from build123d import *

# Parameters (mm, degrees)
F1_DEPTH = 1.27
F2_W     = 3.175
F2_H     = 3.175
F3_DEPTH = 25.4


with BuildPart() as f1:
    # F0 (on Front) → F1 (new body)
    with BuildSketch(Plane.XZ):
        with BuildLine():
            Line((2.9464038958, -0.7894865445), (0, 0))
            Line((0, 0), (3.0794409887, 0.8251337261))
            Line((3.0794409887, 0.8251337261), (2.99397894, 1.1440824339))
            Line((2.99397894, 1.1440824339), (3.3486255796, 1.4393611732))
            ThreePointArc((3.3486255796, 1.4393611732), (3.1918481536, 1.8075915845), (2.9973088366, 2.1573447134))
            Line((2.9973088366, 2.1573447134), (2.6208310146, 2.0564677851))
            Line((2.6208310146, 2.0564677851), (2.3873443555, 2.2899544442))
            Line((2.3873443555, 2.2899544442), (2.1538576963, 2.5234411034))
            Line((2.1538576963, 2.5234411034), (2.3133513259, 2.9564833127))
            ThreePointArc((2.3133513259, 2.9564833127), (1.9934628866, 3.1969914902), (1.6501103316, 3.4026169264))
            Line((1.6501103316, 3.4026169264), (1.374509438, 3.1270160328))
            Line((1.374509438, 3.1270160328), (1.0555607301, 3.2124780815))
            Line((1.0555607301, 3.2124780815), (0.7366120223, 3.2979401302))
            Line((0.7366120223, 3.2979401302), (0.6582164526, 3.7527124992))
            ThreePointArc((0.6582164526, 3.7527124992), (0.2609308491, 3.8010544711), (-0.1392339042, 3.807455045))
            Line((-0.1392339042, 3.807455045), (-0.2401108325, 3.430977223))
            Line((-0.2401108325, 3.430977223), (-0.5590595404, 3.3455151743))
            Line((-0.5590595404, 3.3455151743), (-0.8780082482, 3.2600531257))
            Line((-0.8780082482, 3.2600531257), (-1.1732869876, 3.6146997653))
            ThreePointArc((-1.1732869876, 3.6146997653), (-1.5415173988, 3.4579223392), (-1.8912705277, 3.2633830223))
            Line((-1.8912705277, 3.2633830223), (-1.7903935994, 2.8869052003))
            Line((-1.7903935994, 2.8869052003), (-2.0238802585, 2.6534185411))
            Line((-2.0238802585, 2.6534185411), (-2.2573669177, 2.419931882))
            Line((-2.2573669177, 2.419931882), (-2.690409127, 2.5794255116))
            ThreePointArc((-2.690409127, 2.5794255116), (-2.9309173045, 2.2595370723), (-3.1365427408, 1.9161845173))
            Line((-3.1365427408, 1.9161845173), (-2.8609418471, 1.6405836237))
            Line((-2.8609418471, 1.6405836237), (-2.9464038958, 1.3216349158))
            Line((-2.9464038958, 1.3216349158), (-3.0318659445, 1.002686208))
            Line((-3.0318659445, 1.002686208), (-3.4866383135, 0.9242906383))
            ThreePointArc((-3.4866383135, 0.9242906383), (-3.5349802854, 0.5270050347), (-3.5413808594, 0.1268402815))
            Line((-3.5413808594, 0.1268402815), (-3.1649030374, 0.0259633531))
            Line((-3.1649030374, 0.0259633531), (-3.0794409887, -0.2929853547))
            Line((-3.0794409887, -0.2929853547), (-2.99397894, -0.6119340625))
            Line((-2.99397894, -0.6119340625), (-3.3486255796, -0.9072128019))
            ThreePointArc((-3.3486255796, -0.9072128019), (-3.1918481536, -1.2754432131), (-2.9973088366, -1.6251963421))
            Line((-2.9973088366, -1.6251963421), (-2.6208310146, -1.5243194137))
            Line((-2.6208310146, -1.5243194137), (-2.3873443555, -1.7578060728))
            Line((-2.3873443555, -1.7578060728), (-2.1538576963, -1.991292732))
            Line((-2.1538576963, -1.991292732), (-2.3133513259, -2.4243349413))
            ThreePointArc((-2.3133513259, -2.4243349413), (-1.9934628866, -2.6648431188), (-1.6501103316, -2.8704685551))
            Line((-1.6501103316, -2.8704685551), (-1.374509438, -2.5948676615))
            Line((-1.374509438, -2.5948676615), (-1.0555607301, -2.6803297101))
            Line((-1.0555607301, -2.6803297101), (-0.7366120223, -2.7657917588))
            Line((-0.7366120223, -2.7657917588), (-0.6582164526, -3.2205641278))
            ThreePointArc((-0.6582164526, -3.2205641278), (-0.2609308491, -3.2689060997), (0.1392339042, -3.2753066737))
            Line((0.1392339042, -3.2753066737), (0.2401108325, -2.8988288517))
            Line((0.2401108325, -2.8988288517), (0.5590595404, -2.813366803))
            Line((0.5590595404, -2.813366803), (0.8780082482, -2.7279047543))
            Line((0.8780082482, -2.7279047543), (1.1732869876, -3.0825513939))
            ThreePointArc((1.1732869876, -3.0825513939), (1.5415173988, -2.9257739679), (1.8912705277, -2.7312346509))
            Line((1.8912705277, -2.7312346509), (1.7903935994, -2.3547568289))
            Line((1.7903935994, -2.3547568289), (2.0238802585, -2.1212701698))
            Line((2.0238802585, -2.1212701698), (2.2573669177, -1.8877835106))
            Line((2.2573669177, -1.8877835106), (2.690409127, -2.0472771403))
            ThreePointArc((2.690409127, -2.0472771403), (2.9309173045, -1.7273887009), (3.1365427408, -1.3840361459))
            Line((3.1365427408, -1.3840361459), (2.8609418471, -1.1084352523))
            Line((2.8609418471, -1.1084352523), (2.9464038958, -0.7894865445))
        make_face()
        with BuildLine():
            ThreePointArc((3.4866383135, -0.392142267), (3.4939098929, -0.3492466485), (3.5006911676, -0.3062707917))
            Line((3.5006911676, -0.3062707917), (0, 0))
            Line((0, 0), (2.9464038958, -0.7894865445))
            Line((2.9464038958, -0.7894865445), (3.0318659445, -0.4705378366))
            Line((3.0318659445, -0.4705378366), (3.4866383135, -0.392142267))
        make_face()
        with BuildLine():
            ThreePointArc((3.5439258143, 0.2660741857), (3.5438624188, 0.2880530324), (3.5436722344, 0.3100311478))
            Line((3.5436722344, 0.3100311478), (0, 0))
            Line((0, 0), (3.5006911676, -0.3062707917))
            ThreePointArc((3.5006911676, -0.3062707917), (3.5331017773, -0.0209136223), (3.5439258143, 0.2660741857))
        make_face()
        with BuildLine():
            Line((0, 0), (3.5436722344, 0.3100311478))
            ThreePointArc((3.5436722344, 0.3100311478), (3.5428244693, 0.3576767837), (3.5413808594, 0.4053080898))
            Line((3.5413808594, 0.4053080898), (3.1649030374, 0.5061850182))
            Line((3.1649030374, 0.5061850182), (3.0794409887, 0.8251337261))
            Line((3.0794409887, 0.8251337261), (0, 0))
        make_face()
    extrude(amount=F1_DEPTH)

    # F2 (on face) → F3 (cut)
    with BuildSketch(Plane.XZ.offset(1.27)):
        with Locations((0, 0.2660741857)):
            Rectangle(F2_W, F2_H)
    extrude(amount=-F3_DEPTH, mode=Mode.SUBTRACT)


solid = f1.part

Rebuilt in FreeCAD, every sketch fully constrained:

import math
import FreeCAD as App
import Part
import Sketcher

V = App.Vector
Q = App.Units.Quantity

doc = App.newDocument("Part")
body = doc.addObject("PartDesign::Body", "Body")

# Sketch on XZ plane
sketch1 = doc.addObject("Sketcher::SketchObject", "Sketch")
body.addObject(sketch1)
sketch1.AttachmentSupport = (doc.XZ_Plane, [""])
sketch1.MapMode = "FlatFace"
sketch1.addGeometry([
    Part.LineSegment(V(3.079, 0.825, 0), V(2.994, 1.144, 0)),  # 0
    Part.LineSegment(V(2.994, 1.144, 0), V(3.349, 1.439, 0)),  # 1
    Part.ArcOfCircle(Part.Circle(V(-0.23, 0.133, 0), V(0, 0, 1), 3.81), math.radians(20.05), math.radians(32.09)),  # 2
    Part.LineSegment(V(2.997, 2.157, 0), V(2.621, 2.056, 0)),  # 3
    Part.LineSegment(V(2.621, 2.056, 0), V(2.154, 2.523, 0)),  # 4
    Part.LineSegment(V(2.154, 2.523, 0), V(2.313, 2.956, 0)),  # 5
    Part.ArcOfCircle(Part.Circle(V(-0.133, 0.036, 0), V(0, 0, 1), 3.81), math.radians(50.05), math.radians(62.09)),  # 6
    Part.LineSegment(V(1.65, 3.403, 0), V(1.375, 3.127, 0)),  # 7
    Part.LineSegment(V(1.375, 3.127, 0), V(1.056, 3.212, 0)),  # 8
    Part.LineSegment(V(1.056, 3.212, 0), V(0.737, 3.298, 0)),  # 9
    Part.LineSegment(V(0.737, 3.298, 0), V(0.658, 3.753, 0)),  # 10
    Part.ArcOfCircle(Part.Circle(V(0, 0, 0), V(0, 0, 1), 3.81), math.radians(80.05), math.radians(92.09)),  # 11
    Part.LineSegment(V(-0.139, 3.807, 0), V(-0.24, 3.431, 0)),  # 12
    Part.LineSegment(V(-0.24, 3.431, 0), V(-0.559, 3.346, 0)),  # 13
    Part.LineSegment(V(-0.559, 3.346, 0), V(-0.878, 3.26, 0)),  # 14
    Part.LineSegment(V(-0.878, 3.26, 0), V(-1.173, 3.615, 0)),  # 15
    Part.ArcOfCircle(Part.Circle(V(0.133, 0.036, 0), V(0, 0, 1), 3.81), math.radians(110.05), math.radians(122.09)),  # 16
    Part.LineSegment(V(-1.891, 3.263, 0), V(-1.79, 2.887, 0)),  # 17
    Part.LineSegment(V(-1.79, 2.887, 0), V(-2.024, 2.653, 0)),  # 18
    Part.LineSegment(V(-2.024, 2.653, 0), V(-2.257, 2.42, 0)),  # 19
    Part.LineSegment(V(-2.257, 2.42, 0), V(-2.69, 2.579, 0)),  # 20
    Part.ArcOfCircle(Part.Circle(V(0.23, 0.133, 0), V(0, 0, 1), 3.81), math.radians(140.05), math.radians(152.09)),  # 21
    Part.LineSegment(V(-3.137, 1.916, 0), V(-2.861, 1.641, 0)),  # 22
    Part.LineSegment(V(-2.861, 1.641, 0), V(-2.946, 1.322, 0)),  # 23
    Part.LineSegment(V(-2.946, 1.322, 0), V(-3.032, 1.003, 0)),  # 24
    Part.LineSegment(V(-3.032, 1.003, 0), V(-3.487, 0.924, 0)),  # 25
    Part.ArcOfCircle(Part.Circle(V(0.266, 0.266, 0), V(0, 0, 1), 3.81), math.radians(170.05), math.radians(182.09)),  # 26
    Part.LineSegment(V(-3.541, 0.127, 0), V(-3.165, 0.026, 0)),  # 27
    Part.LineSegment(V(-3.165, 0.026, 0), V(-2.994, -0.612, 0)),  # 28
    Part.LineSegment(V(-2.994, -0.612, 0), V(-3.349, -0.907, 0)),  # 29
    Part.ArcOfCircle(Part.Circle(V(0.23, 0.399, 0), V(0, 0, 1), 3.81), math.radians(-159.95), math.radians(-147.91)),  # 30
    Part.LineSegment(V(-2.997, -1.625, 0), V(-2.621, -1.524, 0)),  # 31
    Part.LineSegment(V(-2.621, -1.524, 0), V(-2.154, -1.991, 0)),  # 32
    Part.LineSegment(V(-2.154, -1.991, 0), V(-2.313, -2.424, 0)),  # 33
    Part.ArcOfCircle(Part.Circle(V(0.133, 0.497, 0), V(0, 0, 1), 3.81), math.radians(-129.95), math.radians(-117.91)),  # 34
    Part.LineSegment(V(-1.65, -2.87, 0), V(-1.375, -2.595, 0)),  # 35
    Part.LineSegment(V(-1.375, -2.595, 0), V(-1.056, -2.68, 0)),  # 36
    Part.LineSegment(V(-1.056, -2.68, 0), V(-0.737, -2.766, 0)),  # 37
    Part.LineSegment(V(-0.737, -2.766, 0), V(-0.658, -3.221, 0)),  # 38
    Part.ArcOfCircle(Part.Circle(V(0, 0.532, 0), V(0, 0, 1), 3.81), math.radians(-99.95), math.radians(-87.91)),  # 39
    Part.LineSegment(V(0.139, -3.275, 0), V(0.24, -2.899, 0)),  # 40
    Part.LineSegment(V(0.24, -2.899, 0), V(0.559, -2.813, 0)),  # 41
    Part.LineSegment(V(0.559, -2.813, 0), V(0.878, -2.728, 0)),  # 42
    Part.LineSegment(V(0.878, -2.728, 0), V(1.173, -3.083, 0)),  # 43
    Part.ArcOfCircle(Part.Circle(V(-0.133, 0.497, 0), V(0, 0, 1), 3.81), math.radians(-69.95), math.radians(-57.91)),  # 44
    Part.LineSegment(V(1.891, -2.731, 0), V(1.79, -2.355, 0)),  # 45
    Part.LineSegment(V(1.79, -2.355, 0), V(2.257, -1.888, 0)),  # 46
    Part.LineSegment(V(2.257, -1.888, 0), V(2.69, -2.047, 0)),  # 47
    Part.ArcOfCircle(Part.Circle(V(-0.23, 0.399, 0), V(0, 0, 1), 3.81), math.radians(-39.95), math.radians(-27.91)),  # 48
    Part.LineSegment(V(3.137, -1.384, 0), V(2.861, -1.108, 0)),  # 49
    Part.LineSegment(V(2.861, -1.108, 0), V(2.946, -0.789, 0)),  # 50
    Part.LineSegment(V(2.946, -0.789, 0), V(3.032, -0.471, 0)),  # 51
    Part.LineSegment(V(3.032, -0.471, 0), V(3.487, -0.392, 0)),  # 52
    Part.ArcOfCircle(Part.Circle(V(-0.266, 0.266, 0), V(0, 0, 1), 3.81), math.radians(-9.95), math.radians(-8.64)),  # 53
    Part.ArcOfCircle(Part.Circle(V(-0.266, 0.266, 0), V(0, 0, 1), 3.81), math.radians(-8.64), math.radians(0)),  # 54
    Part.ArcOfCircle(Part.Circle(V(-0.266, 0.266, 0), V(0, 0, 1), 3.81), math.radians(0), math.radians(0.66)),  # 55
    Part.ArcOfCircle(Part.Circle(V(-0.266, 0.266, 0), V(0, 0, 1), 3.81), math.radians(0.66), math.radians(2.09)),  # 56
    Part.LineSegment(V(3.541, 0.405, 0), V(3.165, 0.506, 0)),  # 57
    Part.LineSegment(V(3.165, 0.506, 0), V(3.079, 0.825, 0)),  # 58
], False)
sketch1.addConstraint([
    Sketcher.Constraint("Coincident", 0, 2, 1, 1),
    Sketcher.Constraint("Coincident", 1, 2, 2, 1),
    Sketcher.Constraint("Coincident", 2, 2, 3, 1),
    Sketcher.Constraint("Coincident", 3, 2, 4, 1),
    Sketcher.Constraint("Coincident", 4, 2, 5, 1),
    Sketcher.Constraint("Coincident", 5, 2, 6, 1),
    Sketcher.Constraint("Coincident", 6, 2, 7, 1),
    Sketcher.Constraint("Coincident", 7, 2, 8, 1),
    Sketcher.Constraint("Coincident", 8, 2, 9, 1),
    Sketcher.Constraint("Coincident", 9, 2, 10, 1),
    Sketcher.Constraint("Coincident", 10, 2, 11, 1),
    Sketcher.Constraint("Coincident", 11, 2, 12, 1),
    Sketcher.Constraint("Coincident", 12, 2, 13, 1),
    Sketcher.Constraint("Coincident", 13, 2, 14, 1),
    Sketcher.Constraint("Coincident", 14, 2, 15, 1),
    Sketcher.Constraint("Coincident", 15, 2, 16, 1),
    Sketcher.Constraint("Coincident", 16, 2, 17, 1),
    Sketcher.Constraint("Coincident", 17, 2, 18, 1),
    Sketcher.Constraint("Coincident", 18, 2, 19, 1),
    Sketcher.Constraint("Coincident", 19, 2, 20, 1),
    Sketcher.Constraint("Coincident", 20, 2, 21, 1),
    Sketcher.Constraint("Coincident", 21, 2, 22, 1),
    Sketcher.Constraint("Coincident", 22, 2, 23, 1),
    Sketcher.Constraint("Coincident", 23, 2, 24, 1),
    Sketcher.Constraint("Coincident", 24, 2, 25, 1),
    Sketcher.Constraint("Coincident", 25, 2, 26, 1),
    Sketcher.Constraint("Coincident", 26, 2, 27, 1),
    Sketcher.Constraint("Coincident", 27, 2, 28, 1),
    Sketcher.Constraint("Coincident", 28, 2, 29, 1),
    Sketcher.Constraint("Coincident", 29, 2, 30, 1),
    Sketcher.Constraint("Coincident", 30, 2, 31, 1),
    Sketcher.Constraint("Coincident", 31, 2, 32, 1),
    Sketcher.Constraint("Coincident", 32, 2, 33, 1),
    Sketcher.Constraint("Coincident", 33, 2, 34, 1),
    Sketcher.Constraint("Coincident", 34, 2, 35, 1),
    Sketcher.Constraint("Coincident", 35, 2, 36, 1),
    Sketcher.Constraint("Coincident", 36, 2, 37, 1),
    Sketcher.Constraint("Coincident", 37, 2, 38, 1),
    Sketcher.Constraint("Coincident", 38, 2, 39, 1),
    Sketcher.Constraint("Coincident", 39, 2, 40, 1),
    Sketcher.Constraint("Coincident", 40, 2, 41, 1),
    Sketcher.Constraint("Coincident", 41, 2, 42, 1),
    Sketcher.Constraint("Coincident", 42, 2, 43, 1),
    Sketcher.Constraint("Coincident", 43, 2, 44, 1),
    Sketcher.Constraint("Coincident", 44, 2, 45, 1),
    Sketcher.Constraint("Coincident", 45, 2, 46, 1),
    Sketcher.Constraint("Coincident", 46, 2, 47, 1),
    Sketcher.Constraint("Coincident", 47, 2, 48, 1),
    Sketcher.Constraint("Coincident", 48, 2, 49, 1),
    Sketcher.Constraint("Coincident", 49, 2, 50, 1),
    Sketcher.Constraint("Coincident", 50, 2, 51, 1),
    Sketcher.Constraint("Coincident", 51, 2, 52, 1),
    Sketcher.Constraint("Coincident", 52, 2, 53, 1),
    Sketcher.Constraint("Tangent", 53, 2, 54, 1),
    Sketcher.Constraint("Tangent", 54, 2, 55, 1),
    Sketcher.Constraint("Tangent", 55, 2, 56, 1),
    Sketcher.Constraint("Coincident", 56, 2, 57, 1),
    Sketcher.Constraint("Coincident", 57, 2, 58, 1),
    Sketcher.Constraint("Coincident", 58, 2, 0, 1),
    Sketcher.Constraint("Coincident", 11, 3, -1, 1),
    Sketcher.Constraint("Coincident", 55, 3, 53, 3),
    Sketcher.Constraint("Equal", 2, 6),
    Sketcher.Constraint("Equal", 6, 11),
    Sketcher.Constraint("Equal", 11, 16),
    Sketcher.Constraint("Equal", 16, 21),
    Sketcher.Constraint("Equal", 21, 26),
    Sketcher.Constraint("Equal", 26, 30),
    Sketcher.Constraint("Equal", 30, 34),
    Sketcher.Constraint("Equal", 34, 39),
    Sketcher.Constraint("Equal", 39, 44),
    Sketcher.Constraint("Equal", 44, 48),
    Sketcher.Constraint("Equal", 48, 53),
    Sketcher.Constraint("Equal", 55, 56),
    Sketcher.Constraint("Symmetric", 6, 3, 16, 3, -2),
    Sketcher.Constraint("Symmetric", 2, 3, 21, 3, -2),
    Sketcher.Constraint("Symmetric", 34, 3, 44, 3, -2),
    Sketcher.Constraint("Symmetric", 30, 3, 48, 3, -2),
    Sketcher.Constraint("Symmetric", 26, 3, 53, 3, -2),
    Sketcher.Constraint("PointOnObject", 39, 3, -2),
    Sketcher.Constraint("Perpendicular", 0, 3),
    Sketcher.Constraint("Perpendicular", 4, 7),
    Sketcher.Constraint("Parallel", 8, 9),
    Sketcher.Constraint("Perpendicular", 9, 12),
    Sketcher.Constraint("Parallel", 3, 13),
    Sketcher.Constraint("Parallel", 13, 14),
    Sketcher.Constraint("Perpendicular", 1, 15),
    Sketcher.Constraint("Perpendicular", 14, 17),
    Sketcher.Constraint("Parallel", 7, 18),
    Sketcher.Constraint("Parallel", 18, 19),
    Sketcher.Constraint("Perpendicular", 5, 20),
    Sketcher.Constraint("Perpendicular", 19, 22),
    Sketcher.Constraint("Parallel", 12, 23),
    Sketcher.Constraint("Parallel", 23, 24),
    Sketcher.Constraint("Perpendicular", 10, 25),
    Sketcher.Constraint("Perpendicular", 24, 27),
    Sketcher.Constraint("Parallel", 17, 28),
    Sketcher.Constraint("Perpendicular", 15, 29),
    Sketcher.Constraint("Perpendicular", 28, 31),
    Sketcher.Constraint("Parallel", 22, 32),
    Sketcher.Constraint("Perpendicular", 20, 33),
    Sketcher.Constraint("Perpendicular", 32, 35),
    Sketcher.Constraint("Parallel", 27, 36),
    Sketcher.Constraint("Parallel", 36, 37),
    Sketcher.Constraint("Perpendicular", 25, 38),
    Sketcher.Constraint("Perpendicular", 37, 40),
    Sketcher.Constraint("Parallel", 31, 41),
    Sketcher.Constraint("Parallel", 41, 42),
    Sketcher.Constraint("Perpendicular", 29, 43),
    Sketcher.Constraint("Perpendicular", 42, 45),
    Sketcher.Constraint("Parallel", 35, 46),
    Sketcher.Constraint("Perpendicular", 33, 47),
    Sketcher.Constraint("Perpendicular", 46, 49),
    Sketcher.Constraint("Parallel", 40, 50),
    Sketcher.Constraint("Parallel", 50, 51),
    Sketcher.Constraint("Perpendicular", 38, 52),
    Sketcher.Constraint("Perpendicular", 51, 57),
    Sketcher.Constraint("Parallel", 45, 58),
    Sketcher.Constraint("Horizontal", 56, 3, 54, 2),
    Sketcher.Constraint("Vertical", 21, 3, 30, 3),
    Sketcher.Constraint("Vertical", 16, 3, 34, 3),
    Sketcher.Constraint("Equal", 1, 5),
    Sketcher.Constraint("Equal", 3, 7),
    Sketcher.Constraint("Equal", 0, 8),
    Sketcher.Constraint("Equal", 8, 9),
    Sketcher.Constraint("Equal", 5, 10),
    Sketcher.Constraint("Equal", 7, 12),
    Sketcher.Constraint("Equal", 9, 13),
    Sketcher.Constraint("Equal", 13, 14),
    Sketcher.Constraint("Equal", 10, 15),
    Sketcher.Constraint("Equal", 12, 17),
    Sketcher.Constraint("Equal", 14, 18),
    Sketcher.Constraint("Equal", 18, 19),
    Sketcher.Constraint("Equal", 15, 20),
    Sketcher.Constraint("Equal", 17, 22),
    Sketcher.Constraint("Equal", 19, 23),
    Sketcher.Constraint("Equal", 23, 24),
    Sketcher.Constraint("Equal", 20, 25),
    Sketcher.Constraint("Equal", 22, 27),
    Sketcher.Constraint("Equal", 4, 28),
    Sketcher.Constraint("Equal", 25, 29),
    Sketcher.Constraint("Equal", 27, 31),
    Sketcher.Constraint("Equal", 28, 32),
    Sketcher.Constraint("Equal", 29, 33),
    Sketcher.Constraint("Equal", 31, 35),
    Sketcher.Constraint("Equal", 24, 36),
    Sketcher.Constraint("Equal", 36, 37),
    Sketcher.Constraint("Equal", 33, 38),
    Sketcher.Constraint("Equal", 35, 40),
    Sketcher.Constraint("Equal", 37, 41),
    Sketcher.Constraint("Equal", 41, 42),
    Sketcher.Constraint("Equal", 38, 43),
    Sketcher.Constraint("Equal", 40, 45),
    Sketcher.Constraint("Equal", 32, 46),
    Sketcher.Constraint("Equal", 43, 47),
    Sketcher.Constraint("Equal", 45, 49),
    Sketcher.Constraint("Equal", 42, 50),
    Sketcher.Constraint("Equal", 50, 51),
    Sketcher.Constraint("Equal", 47, 52),
    Sketcher.Constraint("Equal", 49, 57),
    Sketcher.Constraint("Equal", 51, 58),
    Sketcher.Constraint("Radius", 2, Q("0.15 in")),
    Sketcher.Constraint("Angle", 0, Q("105 deg")),
    Sketcher.Constraint("Angle", 4, Q("135 deg")),
    Sketcher.Constraint("Angle", 8, Q("165 deg")),
    Sketcher.Constraint("Distance", 0, Q("0.013 in")),
    Sketcher.Constraint("Distance", 4, Q("0.026 in")),
    Sketcher.Constraint("DistanceX", 23, 2, -1, 1, Q("0.1160002 in")),
    Sketcher.Constraint("DistanceX", -1, 1, 50, 2, Q("0.1160002 in")),
    Sketcher.Constraint("DistanceY", -1, 1, 11, 2, Q("0.1498998 in")),
    Sketcher.Constraint("DistanceY", -1, 1, 34, 3, Q("0.496501 mm")),
    Sketcher.Constraint("DistanceY", -1, 1, 15, 2, Q("3.6147 mm")),
    Sketcher.Constraint("Distance", 1, Q("0.46148 mm")),
    Sketcher.Constraint("Distance", 3, Q("0.389759 mm")),
    Sketcher.Constraint("DistanceY", -1, 1, 30, 3, Q("0.399111 mm")),
    Sketcher.Constraint("DistanceY", -1, 1, 39, 3, Q("0.532148 mm")),
    Sketcher.Constraint("DistanceX", -1, 1, 0, 2, Q("2.993979 mm")),
    Sketcher.Constraint("DistanceY", -1, 1, 1, 2, Q("1.439361 mm")),
    Sketcher.Constraint("DistanceX", -1, 1, 2, 2, Q("2.997309 mm")),
    Sketcher.Constraint("DistanceY", -1, 1, 4, 2, Q("2.523441 mm")),
    Sketcher.Constraint("DistanceX", -1, 1, 5, 2, Q("2.313351 mm")),
    Sketcher.Constraint("DistanceX", -1, 1, 53, 2, Q("3.500691 mm")),
    Sketcher.Constraint("DistanceY", -1, 1, 55, 2, Q("0.310031 mm")),
])
pad1 = doc.addObject("PartDesign::Pad", "Pad")
body.addObject(pad1)
pad1.Profile = sketch1
pad1.Length = Q("0.05 in")

# Sketch on XZ plane
sketch2 = doc.addObject("Sketcher::SketchObject", "Sketch001")
body.addObject(sketch2)
sketch2.AttachmentSupport = (doc.XZ_Plane, [""])
sketch2.MapMode = "FlatFace"
sketch2.AttachmentOffset = App.Placement(V(0, 0, 0.05 * 25.4), App.Rotation())
sketch2.addGeometry([
    Part.LineSegment(V(-1.6, 1.9, 0), V(-1.6, -1.3, 0)),
    Part.LineSegment(V(-1.6, -1.3, 0), V(1.6, -1.3, 0)),
    Part.LineSegment(V(1.6, -1.3, 0), V(1.6, 1.9, 0)),
    Part.LineSegment(V(1.6, 1.9, 0), V(-1.6, 1.9, 0)),
], False)
sketch2.addConstraint([
    Sketcher.Constraint("Coincident", 0, 2, 1, 1),
    Sketcher.Constraint("Coincident", 1, 2, 2, 1),
    Sketcher.Constraint("Coincident", 2, 2, 3, 1),
    Sketcher.Constraint("Coincident", 3, 2, 0, 1),
    Sketcher.Constraint("Vertical", 0),
    Sketcher.Constraint("Horizontal", 1),
    Sketcher.Constraint("Vertical", 2),
    Sketcher.Constraint("Horizontal", 3),
    Sketcher.Constraint("Equal", 3, 0),
    Sketcher.Constraint("DistanceX", 1, 1, 1, 2, Q("0.125 in")),
    Sketcher.Constraint("DistanceX", 0, 2, -1, 1, Q("0.0625 in")),
    Sketcher.Constraint("DistanceY", 0, 2, -1, 1, Q("1.321426 mm")),
])
pocket1 = doc.addObject("PartDesign::Pocket", "Pocket")
body.addObject(pocket1)
pocket1.Profile = sketch2
pocket1.Length = Q("1 in")

doc.recompute()
